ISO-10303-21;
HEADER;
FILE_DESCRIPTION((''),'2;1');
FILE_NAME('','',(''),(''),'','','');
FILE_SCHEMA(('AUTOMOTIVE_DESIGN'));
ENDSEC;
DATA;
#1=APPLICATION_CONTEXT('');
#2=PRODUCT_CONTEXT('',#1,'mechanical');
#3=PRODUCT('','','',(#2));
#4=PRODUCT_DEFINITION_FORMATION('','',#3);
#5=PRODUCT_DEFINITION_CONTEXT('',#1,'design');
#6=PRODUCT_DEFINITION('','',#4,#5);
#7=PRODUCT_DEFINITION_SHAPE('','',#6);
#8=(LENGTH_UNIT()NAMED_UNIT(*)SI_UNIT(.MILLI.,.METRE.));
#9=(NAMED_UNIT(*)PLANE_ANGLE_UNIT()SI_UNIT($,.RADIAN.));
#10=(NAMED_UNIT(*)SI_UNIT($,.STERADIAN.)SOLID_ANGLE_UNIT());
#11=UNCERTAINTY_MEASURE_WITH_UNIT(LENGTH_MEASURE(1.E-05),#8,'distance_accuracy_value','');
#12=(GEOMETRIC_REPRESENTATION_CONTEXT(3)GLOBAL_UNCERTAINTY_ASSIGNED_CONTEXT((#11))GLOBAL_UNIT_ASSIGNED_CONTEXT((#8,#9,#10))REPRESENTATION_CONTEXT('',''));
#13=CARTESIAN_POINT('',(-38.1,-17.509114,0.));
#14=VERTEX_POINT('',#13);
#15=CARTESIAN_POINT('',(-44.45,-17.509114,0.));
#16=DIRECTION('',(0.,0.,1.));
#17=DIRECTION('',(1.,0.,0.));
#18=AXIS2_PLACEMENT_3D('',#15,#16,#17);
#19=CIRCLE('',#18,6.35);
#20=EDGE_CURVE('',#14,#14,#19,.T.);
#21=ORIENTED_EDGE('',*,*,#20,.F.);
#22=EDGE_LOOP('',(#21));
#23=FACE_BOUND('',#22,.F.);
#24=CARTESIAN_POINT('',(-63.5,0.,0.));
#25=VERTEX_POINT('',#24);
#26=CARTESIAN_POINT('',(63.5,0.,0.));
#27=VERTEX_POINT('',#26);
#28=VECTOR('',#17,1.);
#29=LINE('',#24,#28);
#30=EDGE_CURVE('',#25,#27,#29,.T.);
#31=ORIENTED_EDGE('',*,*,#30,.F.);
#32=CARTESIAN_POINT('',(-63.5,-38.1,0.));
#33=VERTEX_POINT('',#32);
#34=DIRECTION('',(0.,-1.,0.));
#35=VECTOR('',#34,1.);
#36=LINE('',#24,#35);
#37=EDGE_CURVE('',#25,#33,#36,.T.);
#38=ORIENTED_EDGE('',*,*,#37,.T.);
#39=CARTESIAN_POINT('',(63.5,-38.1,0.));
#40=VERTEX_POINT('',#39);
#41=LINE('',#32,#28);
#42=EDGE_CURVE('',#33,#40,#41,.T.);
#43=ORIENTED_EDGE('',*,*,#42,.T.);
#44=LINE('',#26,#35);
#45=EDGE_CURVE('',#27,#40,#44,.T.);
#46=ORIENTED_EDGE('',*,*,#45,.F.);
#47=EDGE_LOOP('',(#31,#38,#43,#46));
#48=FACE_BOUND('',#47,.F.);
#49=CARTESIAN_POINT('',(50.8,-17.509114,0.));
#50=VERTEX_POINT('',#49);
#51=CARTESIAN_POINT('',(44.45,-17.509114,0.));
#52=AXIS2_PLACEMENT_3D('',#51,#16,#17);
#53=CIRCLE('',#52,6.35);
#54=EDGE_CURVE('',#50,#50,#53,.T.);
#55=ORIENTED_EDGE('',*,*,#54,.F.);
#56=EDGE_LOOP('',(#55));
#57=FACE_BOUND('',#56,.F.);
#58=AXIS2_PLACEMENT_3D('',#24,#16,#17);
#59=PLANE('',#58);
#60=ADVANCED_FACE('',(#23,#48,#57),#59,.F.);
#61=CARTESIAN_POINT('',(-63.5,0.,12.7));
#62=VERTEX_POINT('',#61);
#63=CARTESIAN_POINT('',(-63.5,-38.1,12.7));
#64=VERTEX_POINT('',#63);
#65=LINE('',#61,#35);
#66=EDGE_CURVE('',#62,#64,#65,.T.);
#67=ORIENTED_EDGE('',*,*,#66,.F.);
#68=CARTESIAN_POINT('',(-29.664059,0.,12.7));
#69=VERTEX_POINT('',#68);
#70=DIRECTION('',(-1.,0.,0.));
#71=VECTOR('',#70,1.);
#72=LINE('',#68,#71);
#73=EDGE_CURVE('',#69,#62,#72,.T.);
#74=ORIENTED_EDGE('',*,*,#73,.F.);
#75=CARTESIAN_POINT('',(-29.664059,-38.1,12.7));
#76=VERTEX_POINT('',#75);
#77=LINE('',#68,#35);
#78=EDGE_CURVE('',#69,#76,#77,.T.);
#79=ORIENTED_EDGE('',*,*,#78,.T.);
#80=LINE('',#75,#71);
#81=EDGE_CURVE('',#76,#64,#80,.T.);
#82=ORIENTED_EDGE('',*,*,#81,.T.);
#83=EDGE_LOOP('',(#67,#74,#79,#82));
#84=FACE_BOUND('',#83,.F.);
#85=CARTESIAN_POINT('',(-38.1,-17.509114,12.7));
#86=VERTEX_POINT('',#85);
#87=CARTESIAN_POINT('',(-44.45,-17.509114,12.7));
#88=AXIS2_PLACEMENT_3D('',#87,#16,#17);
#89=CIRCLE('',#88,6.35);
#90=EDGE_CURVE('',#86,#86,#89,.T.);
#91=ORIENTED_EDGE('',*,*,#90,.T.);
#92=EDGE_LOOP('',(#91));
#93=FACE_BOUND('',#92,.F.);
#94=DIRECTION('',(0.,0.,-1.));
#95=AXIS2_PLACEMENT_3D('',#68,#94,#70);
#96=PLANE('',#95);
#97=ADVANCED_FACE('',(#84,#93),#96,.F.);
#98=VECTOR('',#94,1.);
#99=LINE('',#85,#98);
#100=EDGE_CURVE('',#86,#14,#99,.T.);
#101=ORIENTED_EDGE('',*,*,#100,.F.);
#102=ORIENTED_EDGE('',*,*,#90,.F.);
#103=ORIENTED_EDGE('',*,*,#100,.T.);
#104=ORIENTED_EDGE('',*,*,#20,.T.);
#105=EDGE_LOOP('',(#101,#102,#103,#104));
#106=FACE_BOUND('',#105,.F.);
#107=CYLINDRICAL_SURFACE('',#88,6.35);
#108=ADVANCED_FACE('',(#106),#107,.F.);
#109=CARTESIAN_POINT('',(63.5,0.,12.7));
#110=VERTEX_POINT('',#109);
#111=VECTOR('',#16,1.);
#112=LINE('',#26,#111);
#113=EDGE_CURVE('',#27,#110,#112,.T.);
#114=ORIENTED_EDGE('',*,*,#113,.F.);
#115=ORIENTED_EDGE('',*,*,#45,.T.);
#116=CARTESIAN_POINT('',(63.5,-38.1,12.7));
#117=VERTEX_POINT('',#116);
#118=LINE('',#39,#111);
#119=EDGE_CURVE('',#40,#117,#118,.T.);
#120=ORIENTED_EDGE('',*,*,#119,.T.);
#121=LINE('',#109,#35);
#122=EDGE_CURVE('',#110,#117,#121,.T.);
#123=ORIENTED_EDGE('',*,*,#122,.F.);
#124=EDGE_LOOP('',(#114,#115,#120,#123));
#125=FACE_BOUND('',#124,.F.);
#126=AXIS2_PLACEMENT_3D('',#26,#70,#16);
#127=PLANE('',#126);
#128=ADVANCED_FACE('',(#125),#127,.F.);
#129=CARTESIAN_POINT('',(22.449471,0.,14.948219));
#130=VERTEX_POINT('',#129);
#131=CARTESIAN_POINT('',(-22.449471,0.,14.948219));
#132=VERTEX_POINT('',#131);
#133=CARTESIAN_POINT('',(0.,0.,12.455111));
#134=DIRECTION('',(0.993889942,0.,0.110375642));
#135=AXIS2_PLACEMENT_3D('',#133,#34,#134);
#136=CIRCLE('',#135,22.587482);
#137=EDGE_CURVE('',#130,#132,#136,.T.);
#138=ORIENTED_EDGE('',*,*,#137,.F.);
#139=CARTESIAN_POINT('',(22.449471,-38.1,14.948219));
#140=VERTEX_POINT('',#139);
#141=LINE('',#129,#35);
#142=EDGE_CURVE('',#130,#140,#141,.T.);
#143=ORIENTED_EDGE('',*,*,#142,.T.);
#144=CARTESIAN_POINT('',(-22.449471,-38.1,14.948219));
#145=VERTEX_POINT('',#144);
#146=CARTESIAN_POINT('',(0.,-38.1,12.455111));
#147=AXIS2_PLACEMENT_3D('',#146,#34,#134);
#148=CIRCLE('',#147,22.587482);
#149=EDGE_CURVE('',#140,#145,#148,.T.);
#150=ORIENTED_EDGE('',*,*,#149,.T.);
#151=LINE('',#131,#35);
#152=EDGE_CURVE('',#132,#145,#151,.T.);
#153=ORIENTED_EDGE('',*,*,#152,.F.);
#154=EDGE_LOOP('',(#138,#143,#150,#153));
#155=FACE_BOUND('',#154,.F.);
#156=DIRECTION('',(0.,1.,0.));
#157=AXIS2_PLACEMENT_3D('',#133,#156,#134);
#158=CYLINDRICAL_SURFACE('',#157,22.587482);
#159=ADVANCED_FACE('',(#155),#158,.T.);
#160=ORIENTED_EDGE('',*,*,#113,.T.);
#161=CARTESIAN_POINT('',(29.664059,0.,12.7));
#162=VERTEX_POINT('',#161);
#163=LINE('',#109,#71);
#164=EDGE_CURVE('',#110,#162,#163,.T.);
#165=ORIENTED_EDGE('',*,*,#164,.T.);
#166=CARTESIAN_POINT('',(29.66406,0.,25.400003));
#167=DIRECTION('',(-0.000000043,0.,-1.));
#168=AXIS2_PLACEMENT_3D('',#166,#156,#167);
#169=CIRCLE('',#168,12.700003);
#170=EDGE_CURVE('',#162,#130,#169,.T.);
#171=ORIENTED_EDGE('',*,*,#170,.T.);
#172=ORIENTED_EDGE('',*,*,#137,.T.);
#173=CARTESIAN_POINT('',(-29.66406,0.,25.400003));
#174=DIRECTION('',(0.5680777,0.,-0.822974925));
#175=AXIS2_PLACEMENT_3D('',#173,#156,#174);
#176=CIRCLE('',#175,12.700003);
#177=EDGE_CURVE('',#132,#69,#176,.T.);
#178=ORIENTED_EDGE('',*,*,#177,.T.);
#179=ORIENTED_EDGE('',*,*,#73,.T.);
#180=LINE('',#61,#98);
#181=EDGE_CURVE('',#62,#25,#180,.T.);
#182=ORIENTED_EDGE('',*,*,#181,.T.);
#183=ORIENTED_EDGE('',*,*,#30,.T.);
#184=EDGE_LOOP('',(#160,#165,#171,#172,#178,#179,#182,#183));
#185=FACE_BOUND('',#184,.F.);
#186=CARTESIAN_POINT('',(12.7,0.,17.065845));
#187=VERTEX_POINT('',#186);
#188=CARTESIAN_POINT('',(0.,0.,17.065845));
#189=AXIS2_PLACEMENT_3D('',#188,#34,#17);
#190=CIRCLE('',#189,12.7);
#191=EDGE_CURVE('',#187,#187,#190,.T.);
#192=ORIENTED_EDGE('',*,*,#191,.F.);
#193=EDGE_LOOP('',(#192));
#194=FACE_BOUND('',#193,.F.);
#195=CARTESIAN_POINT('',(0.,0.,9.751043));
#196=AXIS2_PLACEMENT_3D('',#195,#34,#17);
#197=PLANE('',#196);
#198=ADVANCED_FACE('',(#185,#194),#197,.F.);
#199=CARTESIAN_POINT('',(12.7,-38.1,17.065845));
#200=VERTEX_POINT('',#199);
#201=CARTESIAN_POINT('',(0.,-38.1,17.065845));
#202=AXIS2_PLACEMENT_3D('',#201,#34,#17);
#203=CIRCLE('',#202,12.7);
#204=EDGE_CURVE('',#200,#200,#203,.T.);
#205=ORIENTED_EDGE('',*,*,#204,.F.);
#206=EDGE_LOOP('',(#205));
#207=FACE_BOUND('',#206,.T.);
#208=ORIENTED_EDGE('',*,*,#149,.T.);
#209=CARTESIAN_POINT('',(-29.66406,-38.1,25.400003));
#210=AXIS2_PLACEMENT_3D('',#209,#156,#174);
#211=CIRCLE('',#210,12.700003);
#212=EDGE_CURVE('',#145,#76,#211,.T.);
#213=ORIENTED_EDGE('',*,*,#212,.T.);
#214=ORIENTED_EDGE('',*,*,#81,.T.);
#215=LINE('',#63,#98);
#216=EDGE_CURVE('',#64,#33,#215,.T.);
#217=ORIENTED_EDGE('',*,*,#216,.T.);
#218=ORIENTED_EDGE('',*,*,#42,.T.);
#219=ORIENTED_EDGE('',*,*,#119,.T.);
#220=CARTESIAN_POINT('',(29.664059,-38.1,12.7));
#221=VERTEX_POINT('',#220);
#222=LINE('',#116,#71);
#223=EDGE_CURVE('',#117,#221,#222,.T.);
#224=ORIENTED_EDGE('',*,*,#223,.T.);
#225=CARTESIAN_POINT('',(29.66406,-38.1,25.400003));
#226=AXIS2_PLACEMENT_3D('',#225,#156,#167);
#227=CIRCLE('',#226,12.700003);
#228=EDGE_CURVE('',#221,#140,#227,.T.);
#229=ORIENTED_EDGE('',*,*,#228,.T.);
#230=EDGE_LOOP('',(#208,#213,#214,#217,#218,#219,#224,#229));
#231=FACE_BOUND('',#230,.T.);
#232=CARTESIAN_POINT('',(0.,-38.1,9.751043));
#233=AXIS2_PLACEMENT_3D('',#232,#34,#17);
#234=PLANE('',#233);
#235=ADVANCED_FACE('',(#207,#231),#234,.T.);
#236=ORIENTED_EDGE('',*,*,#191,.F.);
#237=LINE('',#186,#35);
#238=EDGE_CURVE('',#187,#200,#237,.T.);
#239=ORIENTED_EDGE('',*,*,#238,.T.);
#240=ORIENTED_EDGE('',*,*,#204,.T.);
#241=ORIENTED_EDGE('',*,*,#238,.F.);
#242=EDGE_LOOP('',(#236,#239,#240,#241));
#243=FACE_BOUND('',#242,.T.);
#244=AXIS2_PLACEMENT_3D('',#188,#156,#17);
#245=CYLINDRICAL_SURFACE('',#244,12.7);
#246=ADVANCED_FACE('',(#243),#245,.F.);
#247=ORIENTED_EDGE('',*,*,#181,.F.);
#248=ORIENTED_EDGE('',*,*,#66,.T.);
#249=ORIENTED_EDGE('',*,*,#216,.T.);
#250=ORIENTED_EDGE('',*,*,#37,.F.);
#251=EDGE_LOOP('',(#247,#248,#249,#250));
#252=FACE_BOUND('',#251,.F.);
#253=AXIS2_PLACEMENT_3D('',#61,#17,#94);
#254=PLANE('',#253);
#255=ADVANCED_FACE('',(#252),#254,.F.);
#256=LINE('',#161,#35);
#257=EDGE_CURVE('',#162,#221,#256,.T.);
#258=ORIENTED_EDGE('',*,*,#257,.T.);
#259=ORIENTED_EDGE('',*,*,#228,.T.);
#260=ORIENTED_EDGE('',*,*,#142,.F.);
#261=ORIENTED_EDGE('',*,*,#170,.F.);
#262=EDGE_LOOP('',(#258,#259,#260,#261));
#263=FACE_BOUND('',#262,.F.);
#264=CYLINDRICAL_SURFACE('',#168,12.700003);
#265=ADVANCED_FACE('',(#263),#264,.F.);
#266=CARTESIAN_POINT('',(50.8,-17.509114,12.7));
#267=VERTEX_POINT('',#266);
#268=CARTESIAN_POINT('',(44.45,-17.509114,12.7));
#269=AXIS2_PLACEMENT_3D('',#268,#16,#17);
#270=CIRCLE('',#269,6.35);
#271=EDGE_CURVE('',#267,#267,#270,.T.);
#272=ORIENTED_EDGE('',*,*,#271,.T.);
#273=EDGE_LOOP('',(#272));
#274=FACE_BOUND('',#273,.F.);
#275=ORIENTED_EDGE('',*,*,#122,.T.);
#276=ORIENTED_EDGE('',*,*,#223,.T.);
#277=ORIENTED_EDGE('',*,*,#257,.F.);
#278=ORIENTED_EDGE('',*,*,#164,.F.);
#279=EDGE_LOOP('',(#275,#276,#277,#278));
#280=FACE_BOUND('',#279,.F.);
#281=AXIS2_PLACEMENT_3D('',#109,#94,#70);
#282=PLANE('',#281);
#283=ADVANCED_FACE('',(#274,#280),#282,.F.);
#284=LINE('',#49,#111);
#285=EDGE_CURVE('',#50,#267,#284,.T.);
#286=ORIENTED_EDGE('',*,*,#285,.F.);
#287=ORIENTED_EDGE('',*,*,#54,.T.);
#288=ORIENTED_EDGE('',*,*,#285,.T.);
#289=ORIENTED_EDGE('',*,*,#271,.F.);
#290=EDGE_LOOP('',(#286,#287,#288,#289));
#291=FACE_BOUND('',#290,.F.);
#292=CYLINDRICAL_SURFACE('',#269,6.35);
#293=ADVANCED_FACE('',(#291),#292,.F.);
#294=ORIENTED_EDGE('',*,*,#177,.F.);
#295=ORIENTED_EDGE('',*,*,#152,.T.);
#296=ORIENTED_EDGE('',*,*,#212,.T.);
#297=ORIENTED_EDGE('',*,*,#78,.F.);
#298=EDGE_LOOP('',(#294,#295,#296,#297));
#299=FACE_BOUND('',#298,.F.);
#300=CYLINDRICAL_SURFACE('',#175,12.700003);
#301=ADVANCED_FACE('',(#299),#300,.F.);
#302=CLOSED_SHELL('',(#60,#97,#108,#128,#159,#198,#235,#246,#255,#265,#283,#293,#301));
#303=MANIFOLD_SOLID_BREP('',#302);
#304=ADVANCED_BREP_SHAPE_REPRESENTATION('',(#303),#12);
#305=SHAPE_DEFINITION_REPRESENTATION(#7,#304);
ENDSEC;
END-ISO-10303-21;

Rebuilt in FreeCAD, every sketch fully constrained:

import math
import FreeCAD as App
import Part
import Sketcher
from FreeCAD import Vector
Q = App.Units.Quantity

doc = App.newDocument("Part")
body = doc.addObject("PartDesign::Body", "Body")

# Sketch on XZ plane
sketch1 = body.newObject("Sketcher::SketchObject", "Sketch")
sketch1.AttachmentSupport = (doc.getObject("XZ_Plane"), [""])
sketch1.MapMode = "FlatFace"
sketch1.addGeometry([
    Part.LineSegment(Vector(-64, 0, 0), Vector(64, 0, 0)),  # 0
    Part.LineSegment(Vector(64, 0, 0), Vector(64, 13, 0)),  # 1
    Part.LineSegment(Vector(64, 13, 0), Vector(30, 13, 0)),  # 2
    Part.ArcOfCircle(Part.Circle(Vector(30, 25, 0), Vector(0, 0, 1), 13), math.radians(-125), math.radians(-90)),  # 3
    Part.ArcOfCircle(Part.Circle(Vector(0, 12, 0), Vector(0, 0, 1), 23), math.radians(6), math.radians(174)),  # 4
    Part.ArcOfCircle(Part.Circle(Vector(-30, 25, 0), Vector(0, 0, 1), 13), math.radians(-90), math.radians(-55)),  # 5
    Part.LineSegment(Vector(-30, 13, 0), Vector(-64, 13, 0)),  # 6
    Part.LineSegment(Vector(-64, 13, 0), Vector(-64, 0, 0)),  # 7
    Part.Circle(Vector(0, 17, 0), Vector(0, 0, 1), 13),  # 8
], False)
sketch1.addConstraint([
    Sketcher.Constraint("Coincident", 0, 2, 1, 1),
    Sketcher.Constraint("Coincident", 1, 2, 2, 1),
    Sketcher.Constraint("Tangent", 2, 2, 3, 2),
    Sketcher.Constraint("Coincident", 3, 1, 4, 1),
    Sketcher.Constraint("Coincident", 4, 2, 5, 2),
    Sketcher.Constraint("Tangent", 5, 1, 6, 1),
    Sketcher.Constraint("Coincident", 6, 2, 7, 1),
    Sketcher.Constraint("Coincident", 7, 2, 0, 1),
    Sketcher.Constraint("Horizontal", 0),
    Sketcher.Constraint("Vertical", 1),
    Sketcher.Constraint("Horizontal", 2),
    Sketcher.Constraint("Horizontal", 6),
    Sketcher.Constraint("Vertical", 7),
    Sketcher.Constraint("Equal", 3, 5),
    Sketcher.Constraint("Symmetric", 0, 2, 7, 2, -1, 1),
    Sketcher.Constraint("Symmetric", 3, 3, 5, 3, -2),
    Sketcher.Constraint("PointOnObject", 4, 3, -2),
    Sketcher.Constraint("PointOnObject", 8, 3, -2),
    Sketcher.Constraint("Diameter", 8, Q("1 in")),
    Sketcher.Constraint("Radius", 3, Q("0.5000001 in")),
    Sketcher.Constraint("DistanceX", 0, 1, 0, 2, Q("5 in")),
    Sketcher.Constraint("DistanceY", 1, 1, 1, 2, Q("0.5 in")),
    Sketcher.Constraint("Radius", 4, Q("22.587482 mm")),
    Sketcher.Constraint("DistanceX", 2, 2, 2, 1, Q("33.835941 mm")),
    Sketcher.Constraint("DistanceY", -1, 1, 4, 3, Q("12.455111 mm")),
    Sketcher.Constraint("DistanceY", 8, 3, 3, 3, Q("8.334158 mm")),
])
pad1 = body.newObject("PartDesign::Pad", "Pad")
pad1.Profile = sketch1
pad1.Length = Q("1.5 in")

# Sketch on XY plane
sketch2 = body.newObject("Sketcher::SketchObject", "Sketch001")
sketch2.AttachmentSupport = (doc.getObject("XY_Plane"), [""])
sketch2.MapMode = "FlatFace"
sketch2.AttachmentOffset = App.Placement(Vector(0, 0, 0.5 * 25.4), App.Rotation())
sketch2.addGeometry([
    Part.Circle(Vector(-44, -18, 0), Vector(0, 0, 1), 6),
    Part.Circle(Vector(44, -18, 0), Vector(0, 0, 1), 6),
], False)
sketch2.addConstraint([
    Sketcher.Constraint("Equal", 0, 1),
    Sketcher.Constraint("Symmetric", 0, 3, 1, 3, -2),
    Sketcher.Constraint("Diameter", 0, Q("0.5 in")),
    Sketcher.Constraint("DistanceX", 0, 3, 1, 3, Q("3.5 in")),
    Sketcher.Constraint("DistanceY", 0, 3, -1, 1, Q("17.509114 mm")),
])
pocket1 = body.newObject("PartDesign::Pocket", "Pocket")
pocket1.Profile = sketch2
pocket1.Length = Q("1 in")
pocket1.Midplane = True

doc.recompute()
